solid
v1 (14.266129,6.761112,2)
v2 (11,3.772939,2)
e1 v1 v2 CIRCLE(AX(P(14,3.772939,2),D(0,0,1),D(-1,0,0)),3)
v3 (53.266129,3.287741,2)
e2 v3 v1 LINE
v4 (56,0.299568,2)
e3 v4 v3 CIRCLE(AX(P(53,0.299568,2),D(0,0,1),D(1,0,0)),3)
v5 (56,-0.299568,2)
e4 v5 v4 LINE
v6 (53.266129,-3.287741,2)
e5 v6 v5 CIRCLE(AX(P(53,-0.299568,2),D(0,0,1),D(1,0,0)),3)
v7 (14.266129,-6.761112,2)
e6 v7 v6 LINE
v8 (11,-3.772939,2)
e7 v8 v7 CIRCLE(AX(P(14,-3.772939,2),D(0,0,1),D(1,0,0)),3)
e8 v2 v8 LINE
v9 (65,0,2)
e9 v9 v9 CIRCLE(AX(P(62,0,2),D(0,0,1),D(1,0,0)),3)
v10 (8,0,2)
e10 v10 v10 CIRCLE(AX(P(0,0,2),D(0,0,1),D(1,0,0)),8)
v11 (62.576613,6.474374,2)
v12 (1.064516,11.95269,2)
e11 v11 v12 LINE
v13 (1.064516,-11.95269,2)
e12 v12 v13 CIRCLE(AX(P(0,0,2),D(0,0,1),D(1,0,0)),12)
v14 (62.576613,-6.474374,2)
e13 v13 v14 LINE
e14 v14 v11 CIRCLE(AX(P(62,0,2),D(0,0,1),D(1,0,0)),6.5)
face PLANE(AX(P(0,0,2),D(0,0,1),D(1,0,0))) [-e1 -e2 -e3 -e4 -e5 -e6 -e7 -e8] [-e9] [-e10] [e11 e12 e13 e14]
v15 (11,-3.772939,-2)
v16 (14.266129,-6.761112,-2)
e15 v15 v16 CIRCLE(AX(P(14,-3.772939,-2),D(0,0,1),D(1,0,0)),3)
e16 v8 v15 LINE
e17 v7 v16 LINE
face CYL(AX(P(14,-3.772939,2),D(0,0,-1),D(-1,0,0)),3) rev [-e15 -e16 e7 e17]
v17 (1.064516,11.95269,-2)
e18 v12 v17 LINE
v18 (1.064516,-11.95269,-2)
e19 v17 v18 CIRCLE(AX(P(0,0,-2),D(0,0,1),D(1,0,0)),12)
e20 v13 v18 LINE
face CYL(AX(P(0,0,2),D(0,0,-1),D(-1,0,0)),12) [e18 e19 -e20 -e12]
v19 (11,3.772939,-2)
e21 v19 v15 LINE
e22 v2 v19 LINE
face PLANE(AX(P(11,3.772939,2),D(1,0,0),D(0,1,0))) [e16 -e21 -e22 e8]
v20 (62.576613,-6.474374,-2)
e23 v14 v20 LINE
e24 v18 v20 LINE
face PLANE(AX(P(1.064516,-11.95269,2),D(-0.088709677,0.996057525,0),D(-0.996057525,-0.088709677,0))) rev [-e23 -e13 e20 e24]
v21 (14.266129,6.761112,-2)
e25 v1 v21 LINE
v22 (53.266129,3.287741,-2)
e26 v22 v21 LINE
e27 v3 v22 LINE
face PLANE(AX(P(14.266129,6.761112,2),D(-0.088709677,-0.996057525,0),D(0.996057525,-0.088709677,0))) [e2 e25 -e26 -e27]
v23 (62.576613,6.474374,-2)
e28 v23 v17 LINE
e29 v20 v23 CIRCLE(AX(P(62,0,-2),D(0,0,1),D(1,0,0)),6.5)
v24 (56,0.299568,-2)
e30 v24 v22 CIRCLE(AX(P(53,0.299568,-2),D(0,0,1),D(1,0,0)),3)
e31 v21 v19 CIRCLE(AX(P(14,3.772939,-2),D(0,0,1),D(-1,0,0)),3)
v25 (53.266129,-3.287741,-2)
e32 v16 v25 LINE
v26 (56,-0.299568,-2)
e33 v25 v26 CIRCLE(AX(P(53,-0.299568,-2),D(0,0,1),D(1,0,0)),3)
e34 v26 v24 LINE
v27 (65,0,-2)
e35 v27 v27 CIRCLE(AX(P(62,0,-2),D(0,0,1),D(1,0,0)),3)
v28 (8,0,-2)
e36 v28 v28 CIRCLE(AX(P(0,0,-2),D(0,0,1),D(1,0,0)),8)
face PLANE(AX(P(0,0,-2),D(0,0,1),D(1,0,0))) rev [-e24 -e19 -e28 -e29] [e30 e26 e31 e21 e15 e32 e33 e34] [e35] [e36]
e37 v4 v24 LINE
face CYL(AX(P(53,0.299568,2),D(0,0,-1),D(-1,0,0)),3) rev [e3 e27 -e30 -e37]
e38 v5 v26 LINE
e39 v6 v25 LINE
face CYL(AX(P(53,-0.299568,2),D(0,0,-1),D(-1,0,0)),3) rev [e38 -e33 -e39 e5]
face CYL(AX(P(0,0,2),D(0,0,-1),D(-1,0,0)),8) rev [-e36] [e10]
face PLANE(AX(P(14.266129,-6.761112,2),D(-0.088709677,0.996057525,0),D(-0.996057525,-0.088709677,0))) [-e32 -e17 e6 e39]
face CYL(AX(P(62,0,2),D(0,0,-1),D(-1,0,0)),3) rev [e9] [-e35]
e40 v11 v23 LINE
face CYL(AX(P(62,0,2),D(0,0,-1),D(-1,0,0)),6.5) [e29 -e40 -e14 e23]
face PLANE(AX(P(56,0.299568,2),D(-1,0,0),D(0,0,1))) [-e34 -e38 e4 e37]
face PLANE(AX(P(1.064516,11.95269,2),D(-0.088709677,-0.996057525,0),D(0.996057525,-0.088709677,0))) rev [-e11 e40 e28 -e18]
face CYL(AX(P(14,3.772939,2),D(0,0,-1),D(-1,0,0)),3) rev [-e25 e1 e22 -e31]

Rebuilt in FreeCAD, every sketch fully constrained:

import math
import FreeCAD as App
import Part
import Sketcher
from FreeCAD import Vector
Q = App.Units.Quantity

doc = App.newDocument("Part")
body = doc.addObject("PartDesign::Body", "Body")

# Sketch on XY plane
sketch1 = body.newObject("Sketcher::SketchObject", "Sketch")
sketch1.AttachmentSupport = (doc.getObject("XY_Plane"), [""])
sketch1.MapMode = "FlatFace"
sketch1.addGeometry([
    Part.LineSegment(Vector(62.6, 6.5, 0), Vector(1.1, 12, 0)),  # 0
    Part.ArcOfCircle(Part.Circle(Vector(0, 0, 0), Vector(0, 0, 1), 12), math.radians(85), math.radians(275)),  # 1
    Part.LineSegment(Vector(1.1, -12, 0), Vector(62.6, -6.5, 0)),  # 2
    Part.ArcOfCircle(Part.Circle(Vector(62, 0, 0), Vector(0, 0, 1), 6.5), math.radians(-85), math.radians(85)),  # 3
    Part.Circle(Vector(62, 0, 0), Vector(0, 0, 1), 3),  # 4
    Part.LineSegment(Vector(14.3, 6.8, 0), Vector(53.3, 3.3, 0)),  # 5
    Part.ArcOfCircle(Part.Circle(Vector(53, 0.3, 0), Vector(0, 0, 1), 3), math.radians(0), math.radians(85)),  # 6
    Part.LineSegment(Vector(56, 0.3, 0), Vector(56, -0.3, 0)),  # 7
    Part.ArcOfCircle(Part.Circle(Vector(53, -0.3, 0), Vector(0, 0, 1), 3), math.radians(-85), math.radians(0)),  # 8
    Part.LineSegment(Vector(53.3, -3.3, 0), Vector(14.3, -6.8, 0)),  # 9
    Part.ArcOfCircle(Part.Circle(Vector(14, -3.8, 0), Vector(0, 0, 1), 3), math.radians(-180), math.radians(-85)),  # 10
    Part.LineSegment(Vector(11, -3.8, 0), Vector(11, 3.8, 0)),  # 11
    Part.ArcOfCircle(Part.Circle(Vector(14, 3.8, 0), Vector(0, 0, 1), 3), math.radians(85), math.radians(180)),  # 12
    Part.Circle(Vector(0, 0, 0), Vector(0, 0, 1), 8),  # 13
], False)
sketch1.addConstraint([
    Sketcher.Constraint("Tangent", 0, 2, 1, 1),
    Sketcher.Constraint("Tangent", 1, 2, 2, 1),
    Sketcher.Constraint("Tangent", 2, 2, 3, 1),
    Sketcher.Constraint("Tangent", 3, 2, 0, 1),
    Sketcher.Constraint("Tangent", 5, 2, 6, 2),
    Sketcher.Constraint("Tangent", 6, 1, 7, 1),
    Sketcher.Constraint("Tangent", 7, 2, 8, 2),
    Sketcher.Constraint("Tangent", 8, 1, 9, 1),
    Sketcher.Constraint("Tangent", 9, 2, 10, 2),
    Sketcher.Constraint("Tangent", 10, 1, 11, 1),
    Sketcher.Constraint("Tangent", 11, 2, 12, 2),
    Sketcher.Constraint("Tangent", 12, 1, 5, 1),
    Sketcher.Constraint("Vertical", 7),
    Sketcher.Constraint("Vertical", 11),
    Sketcher.Constraint("Coincident", 1, 3, -1, 1),
    Sketcher.Constraint("Coincident", 13, 3, -1, 1),
    Sketcher.Constraint("Coincident", 4, 3, 3, 3),
    Sketcher.Constraint("Equal", 4, 6),
    Sketcher.Constraint("Equal", 6, 8),
    Sketcher.Constraint("Equal", 8, 10),
    Sketcher.Constraint("Equal", 10, 12),
    Sketcher.Constraint("Symmetric", 5, 2, 8, 1, -1),
    Sketcher.Constraint("PointOnObject", 3, 3, -1),
    Sketcher.Constraint("Parallel", 0, 5),
    Sketcher.Constraint("Diameter", 4, Q("6 mm")),
    Sketcher.Constraint("Diameter", 13, Q("16 mm")),
    Sketcher.Constraint("Radius", 1, Q("12 mm")),
    Sketcher.Constraint("Radius", 3, Q("6.5 mm")),
    Sketcher.Constraint("DistanceX", -1, 1, 3, 3, Q("62 mm")),
    Sketcher.Constraint("DistanceX", -1, 1, 6, 3, Q("53 mm")),
    Sketcher.Constraint("DistanceX", -1, 1, 10, 3, Q("14 mm")),
    Sketcher.Constraint("DistanceY", 11, 1, 11, 2, Q("7.545878 mm")),
])
pad1 = body.newObject("PartDesign::Pad", "Pad")
pad1.Profile = sketch1
pad1.Length = 4
pad1.Midplane = True

doc.recompute()
